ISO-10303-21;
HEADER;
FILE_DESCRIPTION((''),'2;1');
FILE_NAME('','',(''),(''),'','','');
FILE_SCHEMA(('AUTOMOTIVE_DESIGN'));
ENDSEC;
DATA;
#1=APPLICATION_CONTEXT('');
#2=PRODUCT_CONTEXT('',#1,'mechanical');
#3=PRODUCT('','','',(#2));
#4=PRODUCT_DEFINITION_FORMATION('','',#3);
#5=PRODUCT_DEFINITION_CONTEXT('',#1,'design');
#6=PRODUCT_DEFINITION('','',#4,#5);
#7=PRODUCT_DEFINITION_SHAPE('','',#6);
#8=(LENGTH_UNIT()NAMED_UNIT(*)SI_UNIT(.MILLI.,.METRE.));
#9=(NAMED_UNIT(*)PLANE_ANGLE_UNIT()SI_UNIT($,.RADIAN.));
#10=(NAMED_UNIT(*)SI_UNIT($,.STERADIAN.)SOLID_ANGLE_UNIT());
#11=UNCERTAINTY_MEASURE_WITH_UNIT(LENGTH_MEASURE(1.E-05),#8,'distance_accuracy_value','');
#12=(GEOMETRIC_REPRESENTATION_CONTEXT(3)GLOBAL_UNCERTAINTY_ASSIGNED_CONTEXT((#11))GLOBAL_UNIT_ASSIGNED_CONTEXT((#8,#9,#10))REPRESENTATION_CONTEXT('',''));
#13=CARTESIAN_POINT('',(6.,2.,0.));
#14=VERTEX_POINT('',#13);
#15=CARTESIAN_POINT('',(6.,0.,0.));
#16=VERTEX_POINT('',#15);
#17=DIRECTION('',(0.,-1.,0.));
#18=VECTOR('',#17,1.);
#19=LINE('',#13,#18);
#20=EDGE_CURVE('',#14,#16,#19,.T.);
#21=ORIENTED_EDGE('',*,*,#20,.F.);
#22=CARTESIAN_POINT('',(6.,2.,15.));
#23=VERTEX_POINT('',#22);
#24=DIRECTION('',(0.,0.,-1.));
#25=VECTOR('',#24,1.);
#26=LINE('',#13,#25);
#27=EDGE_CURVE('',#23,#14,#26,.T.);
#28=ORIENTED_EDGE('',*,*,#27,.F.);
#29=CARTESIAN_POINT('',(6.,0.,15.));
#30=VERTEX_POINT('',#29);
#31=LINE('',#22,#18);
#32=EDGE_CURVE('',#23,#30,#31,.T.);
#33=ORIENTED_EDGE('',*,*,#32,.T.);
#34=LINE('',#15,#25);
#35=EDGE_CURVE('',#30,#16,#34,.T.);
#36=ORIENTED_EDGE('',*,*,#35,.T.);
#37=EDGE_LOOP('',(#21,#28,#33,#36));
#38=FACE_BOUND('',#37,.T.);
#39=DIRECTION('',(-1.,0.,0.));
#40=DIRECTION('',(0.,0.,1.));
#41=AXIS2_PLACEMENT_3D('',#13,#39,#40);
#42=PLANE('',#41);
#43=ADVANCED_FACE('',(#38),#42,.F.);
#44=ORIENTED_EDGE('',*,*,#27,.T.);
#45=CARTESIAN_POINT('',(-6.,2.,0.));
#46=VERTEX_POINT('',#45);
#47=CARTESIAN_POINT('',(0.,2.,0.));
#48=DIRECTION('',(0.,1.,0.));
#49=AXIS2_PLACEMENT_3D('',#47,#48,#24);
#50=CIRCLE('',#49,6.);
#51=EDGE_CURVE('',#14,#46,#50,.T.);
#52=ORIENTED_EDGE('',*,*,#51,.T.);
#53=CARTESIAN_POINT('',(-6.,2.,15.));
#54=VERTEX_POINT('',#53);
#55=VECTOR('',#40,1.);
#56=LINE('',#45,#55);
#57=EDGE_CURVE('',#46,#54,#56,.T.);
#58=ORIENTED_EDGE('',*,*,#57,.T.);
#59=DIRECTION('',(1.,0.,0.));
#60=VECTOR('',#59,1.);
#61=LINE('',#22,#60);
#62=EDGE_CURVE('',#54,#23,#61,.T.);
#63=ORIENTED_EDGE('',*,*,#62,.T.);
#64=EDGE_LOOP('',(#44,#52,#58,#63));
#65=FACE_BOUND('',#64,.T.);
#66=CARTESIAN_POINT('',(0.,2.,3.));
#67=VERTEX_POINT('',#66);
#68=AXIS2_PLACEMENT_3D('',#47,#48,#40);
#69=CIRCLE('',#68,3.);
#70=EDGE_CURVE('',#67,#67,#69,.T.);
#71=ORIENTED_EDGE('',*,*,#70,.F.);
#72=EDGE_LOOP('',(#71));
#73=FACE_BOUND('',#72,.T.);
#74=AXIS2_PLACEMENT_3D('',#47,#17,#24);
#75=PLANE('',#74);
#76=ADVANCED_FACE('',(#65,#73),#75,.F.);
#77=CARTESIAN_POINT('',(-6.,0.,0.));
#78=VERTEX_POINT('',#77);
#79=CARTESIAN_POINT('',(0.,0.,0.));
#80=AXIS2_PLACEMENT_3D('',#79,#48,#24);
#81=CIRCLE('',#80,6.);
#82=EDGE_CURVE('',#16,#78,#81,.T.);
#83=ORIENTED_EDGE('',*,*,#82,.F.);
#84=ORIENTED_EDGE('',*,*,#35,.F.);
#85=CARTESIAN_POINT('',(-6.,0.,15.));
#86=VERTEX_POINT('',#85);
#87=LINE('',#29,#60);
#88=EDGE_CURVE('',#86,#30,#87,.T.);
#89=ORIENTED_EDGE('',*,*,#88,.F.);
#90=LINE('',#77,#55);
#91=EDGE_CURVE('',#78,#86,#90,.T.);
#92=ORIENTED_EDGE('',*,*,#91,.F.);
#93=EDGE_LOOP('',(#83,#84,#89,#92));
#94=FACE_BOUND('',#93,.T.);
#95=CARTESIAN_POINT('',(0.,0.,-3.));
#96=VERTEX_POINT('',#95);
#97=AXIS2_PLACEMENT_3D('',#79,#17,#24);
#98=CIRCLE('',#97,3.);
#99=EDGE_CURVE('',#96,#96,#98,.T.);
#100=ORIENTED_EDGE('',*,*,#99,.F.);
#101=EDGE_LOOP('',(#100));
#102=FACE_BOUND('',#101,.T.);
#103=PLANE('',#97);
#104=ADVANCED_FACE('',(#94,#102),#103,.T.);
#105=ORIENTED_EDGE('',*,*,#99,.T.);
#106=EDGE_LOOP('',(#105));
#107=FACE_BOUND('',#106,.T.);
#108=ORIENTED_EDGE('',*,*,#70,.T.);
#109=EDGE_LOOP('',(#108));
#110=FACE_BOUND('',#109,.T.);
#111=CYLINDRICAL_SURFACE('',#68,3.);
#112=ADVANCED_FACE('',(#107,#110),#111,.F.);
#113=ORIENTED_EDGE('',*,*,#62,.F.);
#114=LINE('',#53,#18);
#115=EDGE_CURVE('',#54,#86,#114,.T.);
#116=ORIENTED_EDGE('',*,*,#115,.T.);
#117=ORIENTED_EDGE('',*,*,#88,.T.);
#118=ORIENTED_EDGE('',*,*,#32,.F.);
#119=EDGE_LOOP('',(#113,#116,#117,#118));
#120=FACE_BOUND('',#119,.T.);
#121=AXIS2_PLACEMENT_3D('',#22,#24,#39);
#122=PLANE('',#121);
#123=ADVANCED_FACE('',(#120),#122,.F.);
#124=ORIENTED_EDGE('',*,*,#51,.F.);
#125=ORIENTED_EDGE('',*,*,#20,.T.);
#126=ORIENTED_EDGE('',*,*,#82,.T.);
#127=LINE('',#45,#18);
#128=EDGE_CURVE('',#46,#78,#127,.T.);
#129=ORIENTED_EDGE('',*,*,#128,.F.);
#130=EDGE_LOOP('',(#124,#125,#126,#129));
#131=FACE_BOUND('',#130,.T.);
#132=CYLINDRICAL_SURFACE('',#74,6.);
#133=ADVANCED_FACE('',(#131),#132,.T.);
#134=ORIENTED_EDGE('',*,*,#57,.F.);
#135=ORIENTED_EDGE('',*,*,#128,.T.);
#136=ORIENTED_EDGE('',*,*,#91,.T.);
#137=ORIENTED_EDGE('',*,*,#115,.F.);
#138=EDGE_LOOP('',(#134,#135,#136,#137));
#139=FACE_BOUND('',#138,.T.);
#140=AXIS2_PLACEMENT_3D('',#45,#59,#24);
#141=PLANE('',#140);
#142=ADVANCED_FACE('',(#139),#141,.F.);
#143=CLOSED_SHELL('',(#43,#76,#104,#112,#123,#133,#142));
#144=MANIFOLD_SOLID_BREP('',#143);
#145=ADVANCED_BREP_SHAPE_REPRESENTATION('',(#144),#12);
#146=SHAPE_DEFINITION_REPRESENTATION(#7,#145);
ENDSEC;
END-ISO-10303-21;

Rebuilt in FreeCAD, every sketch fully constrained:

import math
import FreeCAD as App
import Part
import Sketcher
from FreeCAD import Vector
Q = App.Units.Quantity

doc = App.newDocument("Part")
params = doc.addObject("Spreadsheet::Sheet", "Params")
for row, (alias, value) in enumerate([
    ("sketch1_radius", "6 mm"),
    ("sketch1_height", "15 mm"),
    ("pad1_length", "2 mm"),
    ("sketch2_diameter", "6 mm"),
    ("hole_diameter", "6 mm"),
    ("hole_depth", "2 mm"),
], start=1):
    params.set(f"A{row}", alias)
    params.set(f"B{row}", "=" + value)
    params.setAlias(f"B{row}", alias)

body = doc.addObject("PartDesign::Body", "Body")

# Sketch on XZ plane
sketch1 = body.newObject("Sketcher::SketchObject", "Sketch")
sketch1.AttachmentSupport = (doc.getObject("XZ_Plane"), [""])
sketch1.MapMode = "FlatFace"
sketch1.addGeometry([
    Part.LineSegment(Vector(-6, 0, 0), Vector(-6, 15, 0)),
    Part.LineSegment(Vector(-6, 15, 0), Vector(6, 15, 0)),
    Part.LineSegment(Vector(6, 15, 0), Vector(6, 0, 0)),
    Part.ArcOfCircle(Part.Circle(Vector(0, 0, 0), Vector(0, 0, 1), 6), math.radians(180), math.radians(360)),
], False)
sketch1.addConstraint([
    Sketcher.Constraint("Coincident", 0, 2, 1, 1),
    Sketcher.Constraint("Coincident", 1, 2, 2, 1),
    Sketcher.Constraint("Tangent", 2, 2, 3, 2),
    Sketcher.Constraint("Tangent", 3, 1, 0, 1),
    Sketcher.Constraint("Vertical", 0),
    Sketcher.Constraint("Horizontal", 1),
    Sketcher.Constraint("Vertical", 2),
    Sketcher.Constraint("Coincident", 3, 3, -1, 1),
    Sketcher.Constraint("Radius", 3, Q("6 mm")),
    Sketcher.Constraint("DistanceY", 0, 1, 0, 2, Q("15 mm")),
])
sketch1.setExpression("Constraints[8]", "Params.sketch1_radius")
sketch1.setExpression("Constraints[9]", "Params.sketch1_height")
pad1 = body.newObject("PartDesign::Pad", "Pad")
pad1.Profile = sketch1
pad1.setExpression("Length", "Params.pad1_length")
pad1.Reversed = True

# Sketch on XZ plane
sketch2 = body.newObject("Sketcher::SketchObject", "Sketch001")
sketch2.AttachmentSupport = (doc.getObject("XZ_Plane"), [""])
sketch2.MapMode = "FlatFace"
sketch2.AttachmentOffset = App.Placement(Vector(0, 0, -2), App.Rotation())
sketch2.addGeometry(Part.Circle(Vector(0, 0, 0), Vector(0, 0, 1), 3), False)
sketch2.addConstraint([
    Sketcher.Constraint("Coincident", 0, 3, -1, 1),
    Sketcher.Constraint("Diameter", 0, Q("6 mm")),
])
sketch2.setExpression("Constraints[1]", "Params.sketch2_diameter")
doc.recompute()
hole = body.newObject("PartDesign::Hole", "Hole")
hole.Profile = sketch2
hole.ThreadType = "None"
hole.setExpression("Diameter", "Params.hole_diameter")
hole.DepthType = "Dimension"
hole.setExpression("Depth", "Params.hole_depth")
hole.DrillPoint = "Flat"
hole.Reversed = True

doc.recompute()
